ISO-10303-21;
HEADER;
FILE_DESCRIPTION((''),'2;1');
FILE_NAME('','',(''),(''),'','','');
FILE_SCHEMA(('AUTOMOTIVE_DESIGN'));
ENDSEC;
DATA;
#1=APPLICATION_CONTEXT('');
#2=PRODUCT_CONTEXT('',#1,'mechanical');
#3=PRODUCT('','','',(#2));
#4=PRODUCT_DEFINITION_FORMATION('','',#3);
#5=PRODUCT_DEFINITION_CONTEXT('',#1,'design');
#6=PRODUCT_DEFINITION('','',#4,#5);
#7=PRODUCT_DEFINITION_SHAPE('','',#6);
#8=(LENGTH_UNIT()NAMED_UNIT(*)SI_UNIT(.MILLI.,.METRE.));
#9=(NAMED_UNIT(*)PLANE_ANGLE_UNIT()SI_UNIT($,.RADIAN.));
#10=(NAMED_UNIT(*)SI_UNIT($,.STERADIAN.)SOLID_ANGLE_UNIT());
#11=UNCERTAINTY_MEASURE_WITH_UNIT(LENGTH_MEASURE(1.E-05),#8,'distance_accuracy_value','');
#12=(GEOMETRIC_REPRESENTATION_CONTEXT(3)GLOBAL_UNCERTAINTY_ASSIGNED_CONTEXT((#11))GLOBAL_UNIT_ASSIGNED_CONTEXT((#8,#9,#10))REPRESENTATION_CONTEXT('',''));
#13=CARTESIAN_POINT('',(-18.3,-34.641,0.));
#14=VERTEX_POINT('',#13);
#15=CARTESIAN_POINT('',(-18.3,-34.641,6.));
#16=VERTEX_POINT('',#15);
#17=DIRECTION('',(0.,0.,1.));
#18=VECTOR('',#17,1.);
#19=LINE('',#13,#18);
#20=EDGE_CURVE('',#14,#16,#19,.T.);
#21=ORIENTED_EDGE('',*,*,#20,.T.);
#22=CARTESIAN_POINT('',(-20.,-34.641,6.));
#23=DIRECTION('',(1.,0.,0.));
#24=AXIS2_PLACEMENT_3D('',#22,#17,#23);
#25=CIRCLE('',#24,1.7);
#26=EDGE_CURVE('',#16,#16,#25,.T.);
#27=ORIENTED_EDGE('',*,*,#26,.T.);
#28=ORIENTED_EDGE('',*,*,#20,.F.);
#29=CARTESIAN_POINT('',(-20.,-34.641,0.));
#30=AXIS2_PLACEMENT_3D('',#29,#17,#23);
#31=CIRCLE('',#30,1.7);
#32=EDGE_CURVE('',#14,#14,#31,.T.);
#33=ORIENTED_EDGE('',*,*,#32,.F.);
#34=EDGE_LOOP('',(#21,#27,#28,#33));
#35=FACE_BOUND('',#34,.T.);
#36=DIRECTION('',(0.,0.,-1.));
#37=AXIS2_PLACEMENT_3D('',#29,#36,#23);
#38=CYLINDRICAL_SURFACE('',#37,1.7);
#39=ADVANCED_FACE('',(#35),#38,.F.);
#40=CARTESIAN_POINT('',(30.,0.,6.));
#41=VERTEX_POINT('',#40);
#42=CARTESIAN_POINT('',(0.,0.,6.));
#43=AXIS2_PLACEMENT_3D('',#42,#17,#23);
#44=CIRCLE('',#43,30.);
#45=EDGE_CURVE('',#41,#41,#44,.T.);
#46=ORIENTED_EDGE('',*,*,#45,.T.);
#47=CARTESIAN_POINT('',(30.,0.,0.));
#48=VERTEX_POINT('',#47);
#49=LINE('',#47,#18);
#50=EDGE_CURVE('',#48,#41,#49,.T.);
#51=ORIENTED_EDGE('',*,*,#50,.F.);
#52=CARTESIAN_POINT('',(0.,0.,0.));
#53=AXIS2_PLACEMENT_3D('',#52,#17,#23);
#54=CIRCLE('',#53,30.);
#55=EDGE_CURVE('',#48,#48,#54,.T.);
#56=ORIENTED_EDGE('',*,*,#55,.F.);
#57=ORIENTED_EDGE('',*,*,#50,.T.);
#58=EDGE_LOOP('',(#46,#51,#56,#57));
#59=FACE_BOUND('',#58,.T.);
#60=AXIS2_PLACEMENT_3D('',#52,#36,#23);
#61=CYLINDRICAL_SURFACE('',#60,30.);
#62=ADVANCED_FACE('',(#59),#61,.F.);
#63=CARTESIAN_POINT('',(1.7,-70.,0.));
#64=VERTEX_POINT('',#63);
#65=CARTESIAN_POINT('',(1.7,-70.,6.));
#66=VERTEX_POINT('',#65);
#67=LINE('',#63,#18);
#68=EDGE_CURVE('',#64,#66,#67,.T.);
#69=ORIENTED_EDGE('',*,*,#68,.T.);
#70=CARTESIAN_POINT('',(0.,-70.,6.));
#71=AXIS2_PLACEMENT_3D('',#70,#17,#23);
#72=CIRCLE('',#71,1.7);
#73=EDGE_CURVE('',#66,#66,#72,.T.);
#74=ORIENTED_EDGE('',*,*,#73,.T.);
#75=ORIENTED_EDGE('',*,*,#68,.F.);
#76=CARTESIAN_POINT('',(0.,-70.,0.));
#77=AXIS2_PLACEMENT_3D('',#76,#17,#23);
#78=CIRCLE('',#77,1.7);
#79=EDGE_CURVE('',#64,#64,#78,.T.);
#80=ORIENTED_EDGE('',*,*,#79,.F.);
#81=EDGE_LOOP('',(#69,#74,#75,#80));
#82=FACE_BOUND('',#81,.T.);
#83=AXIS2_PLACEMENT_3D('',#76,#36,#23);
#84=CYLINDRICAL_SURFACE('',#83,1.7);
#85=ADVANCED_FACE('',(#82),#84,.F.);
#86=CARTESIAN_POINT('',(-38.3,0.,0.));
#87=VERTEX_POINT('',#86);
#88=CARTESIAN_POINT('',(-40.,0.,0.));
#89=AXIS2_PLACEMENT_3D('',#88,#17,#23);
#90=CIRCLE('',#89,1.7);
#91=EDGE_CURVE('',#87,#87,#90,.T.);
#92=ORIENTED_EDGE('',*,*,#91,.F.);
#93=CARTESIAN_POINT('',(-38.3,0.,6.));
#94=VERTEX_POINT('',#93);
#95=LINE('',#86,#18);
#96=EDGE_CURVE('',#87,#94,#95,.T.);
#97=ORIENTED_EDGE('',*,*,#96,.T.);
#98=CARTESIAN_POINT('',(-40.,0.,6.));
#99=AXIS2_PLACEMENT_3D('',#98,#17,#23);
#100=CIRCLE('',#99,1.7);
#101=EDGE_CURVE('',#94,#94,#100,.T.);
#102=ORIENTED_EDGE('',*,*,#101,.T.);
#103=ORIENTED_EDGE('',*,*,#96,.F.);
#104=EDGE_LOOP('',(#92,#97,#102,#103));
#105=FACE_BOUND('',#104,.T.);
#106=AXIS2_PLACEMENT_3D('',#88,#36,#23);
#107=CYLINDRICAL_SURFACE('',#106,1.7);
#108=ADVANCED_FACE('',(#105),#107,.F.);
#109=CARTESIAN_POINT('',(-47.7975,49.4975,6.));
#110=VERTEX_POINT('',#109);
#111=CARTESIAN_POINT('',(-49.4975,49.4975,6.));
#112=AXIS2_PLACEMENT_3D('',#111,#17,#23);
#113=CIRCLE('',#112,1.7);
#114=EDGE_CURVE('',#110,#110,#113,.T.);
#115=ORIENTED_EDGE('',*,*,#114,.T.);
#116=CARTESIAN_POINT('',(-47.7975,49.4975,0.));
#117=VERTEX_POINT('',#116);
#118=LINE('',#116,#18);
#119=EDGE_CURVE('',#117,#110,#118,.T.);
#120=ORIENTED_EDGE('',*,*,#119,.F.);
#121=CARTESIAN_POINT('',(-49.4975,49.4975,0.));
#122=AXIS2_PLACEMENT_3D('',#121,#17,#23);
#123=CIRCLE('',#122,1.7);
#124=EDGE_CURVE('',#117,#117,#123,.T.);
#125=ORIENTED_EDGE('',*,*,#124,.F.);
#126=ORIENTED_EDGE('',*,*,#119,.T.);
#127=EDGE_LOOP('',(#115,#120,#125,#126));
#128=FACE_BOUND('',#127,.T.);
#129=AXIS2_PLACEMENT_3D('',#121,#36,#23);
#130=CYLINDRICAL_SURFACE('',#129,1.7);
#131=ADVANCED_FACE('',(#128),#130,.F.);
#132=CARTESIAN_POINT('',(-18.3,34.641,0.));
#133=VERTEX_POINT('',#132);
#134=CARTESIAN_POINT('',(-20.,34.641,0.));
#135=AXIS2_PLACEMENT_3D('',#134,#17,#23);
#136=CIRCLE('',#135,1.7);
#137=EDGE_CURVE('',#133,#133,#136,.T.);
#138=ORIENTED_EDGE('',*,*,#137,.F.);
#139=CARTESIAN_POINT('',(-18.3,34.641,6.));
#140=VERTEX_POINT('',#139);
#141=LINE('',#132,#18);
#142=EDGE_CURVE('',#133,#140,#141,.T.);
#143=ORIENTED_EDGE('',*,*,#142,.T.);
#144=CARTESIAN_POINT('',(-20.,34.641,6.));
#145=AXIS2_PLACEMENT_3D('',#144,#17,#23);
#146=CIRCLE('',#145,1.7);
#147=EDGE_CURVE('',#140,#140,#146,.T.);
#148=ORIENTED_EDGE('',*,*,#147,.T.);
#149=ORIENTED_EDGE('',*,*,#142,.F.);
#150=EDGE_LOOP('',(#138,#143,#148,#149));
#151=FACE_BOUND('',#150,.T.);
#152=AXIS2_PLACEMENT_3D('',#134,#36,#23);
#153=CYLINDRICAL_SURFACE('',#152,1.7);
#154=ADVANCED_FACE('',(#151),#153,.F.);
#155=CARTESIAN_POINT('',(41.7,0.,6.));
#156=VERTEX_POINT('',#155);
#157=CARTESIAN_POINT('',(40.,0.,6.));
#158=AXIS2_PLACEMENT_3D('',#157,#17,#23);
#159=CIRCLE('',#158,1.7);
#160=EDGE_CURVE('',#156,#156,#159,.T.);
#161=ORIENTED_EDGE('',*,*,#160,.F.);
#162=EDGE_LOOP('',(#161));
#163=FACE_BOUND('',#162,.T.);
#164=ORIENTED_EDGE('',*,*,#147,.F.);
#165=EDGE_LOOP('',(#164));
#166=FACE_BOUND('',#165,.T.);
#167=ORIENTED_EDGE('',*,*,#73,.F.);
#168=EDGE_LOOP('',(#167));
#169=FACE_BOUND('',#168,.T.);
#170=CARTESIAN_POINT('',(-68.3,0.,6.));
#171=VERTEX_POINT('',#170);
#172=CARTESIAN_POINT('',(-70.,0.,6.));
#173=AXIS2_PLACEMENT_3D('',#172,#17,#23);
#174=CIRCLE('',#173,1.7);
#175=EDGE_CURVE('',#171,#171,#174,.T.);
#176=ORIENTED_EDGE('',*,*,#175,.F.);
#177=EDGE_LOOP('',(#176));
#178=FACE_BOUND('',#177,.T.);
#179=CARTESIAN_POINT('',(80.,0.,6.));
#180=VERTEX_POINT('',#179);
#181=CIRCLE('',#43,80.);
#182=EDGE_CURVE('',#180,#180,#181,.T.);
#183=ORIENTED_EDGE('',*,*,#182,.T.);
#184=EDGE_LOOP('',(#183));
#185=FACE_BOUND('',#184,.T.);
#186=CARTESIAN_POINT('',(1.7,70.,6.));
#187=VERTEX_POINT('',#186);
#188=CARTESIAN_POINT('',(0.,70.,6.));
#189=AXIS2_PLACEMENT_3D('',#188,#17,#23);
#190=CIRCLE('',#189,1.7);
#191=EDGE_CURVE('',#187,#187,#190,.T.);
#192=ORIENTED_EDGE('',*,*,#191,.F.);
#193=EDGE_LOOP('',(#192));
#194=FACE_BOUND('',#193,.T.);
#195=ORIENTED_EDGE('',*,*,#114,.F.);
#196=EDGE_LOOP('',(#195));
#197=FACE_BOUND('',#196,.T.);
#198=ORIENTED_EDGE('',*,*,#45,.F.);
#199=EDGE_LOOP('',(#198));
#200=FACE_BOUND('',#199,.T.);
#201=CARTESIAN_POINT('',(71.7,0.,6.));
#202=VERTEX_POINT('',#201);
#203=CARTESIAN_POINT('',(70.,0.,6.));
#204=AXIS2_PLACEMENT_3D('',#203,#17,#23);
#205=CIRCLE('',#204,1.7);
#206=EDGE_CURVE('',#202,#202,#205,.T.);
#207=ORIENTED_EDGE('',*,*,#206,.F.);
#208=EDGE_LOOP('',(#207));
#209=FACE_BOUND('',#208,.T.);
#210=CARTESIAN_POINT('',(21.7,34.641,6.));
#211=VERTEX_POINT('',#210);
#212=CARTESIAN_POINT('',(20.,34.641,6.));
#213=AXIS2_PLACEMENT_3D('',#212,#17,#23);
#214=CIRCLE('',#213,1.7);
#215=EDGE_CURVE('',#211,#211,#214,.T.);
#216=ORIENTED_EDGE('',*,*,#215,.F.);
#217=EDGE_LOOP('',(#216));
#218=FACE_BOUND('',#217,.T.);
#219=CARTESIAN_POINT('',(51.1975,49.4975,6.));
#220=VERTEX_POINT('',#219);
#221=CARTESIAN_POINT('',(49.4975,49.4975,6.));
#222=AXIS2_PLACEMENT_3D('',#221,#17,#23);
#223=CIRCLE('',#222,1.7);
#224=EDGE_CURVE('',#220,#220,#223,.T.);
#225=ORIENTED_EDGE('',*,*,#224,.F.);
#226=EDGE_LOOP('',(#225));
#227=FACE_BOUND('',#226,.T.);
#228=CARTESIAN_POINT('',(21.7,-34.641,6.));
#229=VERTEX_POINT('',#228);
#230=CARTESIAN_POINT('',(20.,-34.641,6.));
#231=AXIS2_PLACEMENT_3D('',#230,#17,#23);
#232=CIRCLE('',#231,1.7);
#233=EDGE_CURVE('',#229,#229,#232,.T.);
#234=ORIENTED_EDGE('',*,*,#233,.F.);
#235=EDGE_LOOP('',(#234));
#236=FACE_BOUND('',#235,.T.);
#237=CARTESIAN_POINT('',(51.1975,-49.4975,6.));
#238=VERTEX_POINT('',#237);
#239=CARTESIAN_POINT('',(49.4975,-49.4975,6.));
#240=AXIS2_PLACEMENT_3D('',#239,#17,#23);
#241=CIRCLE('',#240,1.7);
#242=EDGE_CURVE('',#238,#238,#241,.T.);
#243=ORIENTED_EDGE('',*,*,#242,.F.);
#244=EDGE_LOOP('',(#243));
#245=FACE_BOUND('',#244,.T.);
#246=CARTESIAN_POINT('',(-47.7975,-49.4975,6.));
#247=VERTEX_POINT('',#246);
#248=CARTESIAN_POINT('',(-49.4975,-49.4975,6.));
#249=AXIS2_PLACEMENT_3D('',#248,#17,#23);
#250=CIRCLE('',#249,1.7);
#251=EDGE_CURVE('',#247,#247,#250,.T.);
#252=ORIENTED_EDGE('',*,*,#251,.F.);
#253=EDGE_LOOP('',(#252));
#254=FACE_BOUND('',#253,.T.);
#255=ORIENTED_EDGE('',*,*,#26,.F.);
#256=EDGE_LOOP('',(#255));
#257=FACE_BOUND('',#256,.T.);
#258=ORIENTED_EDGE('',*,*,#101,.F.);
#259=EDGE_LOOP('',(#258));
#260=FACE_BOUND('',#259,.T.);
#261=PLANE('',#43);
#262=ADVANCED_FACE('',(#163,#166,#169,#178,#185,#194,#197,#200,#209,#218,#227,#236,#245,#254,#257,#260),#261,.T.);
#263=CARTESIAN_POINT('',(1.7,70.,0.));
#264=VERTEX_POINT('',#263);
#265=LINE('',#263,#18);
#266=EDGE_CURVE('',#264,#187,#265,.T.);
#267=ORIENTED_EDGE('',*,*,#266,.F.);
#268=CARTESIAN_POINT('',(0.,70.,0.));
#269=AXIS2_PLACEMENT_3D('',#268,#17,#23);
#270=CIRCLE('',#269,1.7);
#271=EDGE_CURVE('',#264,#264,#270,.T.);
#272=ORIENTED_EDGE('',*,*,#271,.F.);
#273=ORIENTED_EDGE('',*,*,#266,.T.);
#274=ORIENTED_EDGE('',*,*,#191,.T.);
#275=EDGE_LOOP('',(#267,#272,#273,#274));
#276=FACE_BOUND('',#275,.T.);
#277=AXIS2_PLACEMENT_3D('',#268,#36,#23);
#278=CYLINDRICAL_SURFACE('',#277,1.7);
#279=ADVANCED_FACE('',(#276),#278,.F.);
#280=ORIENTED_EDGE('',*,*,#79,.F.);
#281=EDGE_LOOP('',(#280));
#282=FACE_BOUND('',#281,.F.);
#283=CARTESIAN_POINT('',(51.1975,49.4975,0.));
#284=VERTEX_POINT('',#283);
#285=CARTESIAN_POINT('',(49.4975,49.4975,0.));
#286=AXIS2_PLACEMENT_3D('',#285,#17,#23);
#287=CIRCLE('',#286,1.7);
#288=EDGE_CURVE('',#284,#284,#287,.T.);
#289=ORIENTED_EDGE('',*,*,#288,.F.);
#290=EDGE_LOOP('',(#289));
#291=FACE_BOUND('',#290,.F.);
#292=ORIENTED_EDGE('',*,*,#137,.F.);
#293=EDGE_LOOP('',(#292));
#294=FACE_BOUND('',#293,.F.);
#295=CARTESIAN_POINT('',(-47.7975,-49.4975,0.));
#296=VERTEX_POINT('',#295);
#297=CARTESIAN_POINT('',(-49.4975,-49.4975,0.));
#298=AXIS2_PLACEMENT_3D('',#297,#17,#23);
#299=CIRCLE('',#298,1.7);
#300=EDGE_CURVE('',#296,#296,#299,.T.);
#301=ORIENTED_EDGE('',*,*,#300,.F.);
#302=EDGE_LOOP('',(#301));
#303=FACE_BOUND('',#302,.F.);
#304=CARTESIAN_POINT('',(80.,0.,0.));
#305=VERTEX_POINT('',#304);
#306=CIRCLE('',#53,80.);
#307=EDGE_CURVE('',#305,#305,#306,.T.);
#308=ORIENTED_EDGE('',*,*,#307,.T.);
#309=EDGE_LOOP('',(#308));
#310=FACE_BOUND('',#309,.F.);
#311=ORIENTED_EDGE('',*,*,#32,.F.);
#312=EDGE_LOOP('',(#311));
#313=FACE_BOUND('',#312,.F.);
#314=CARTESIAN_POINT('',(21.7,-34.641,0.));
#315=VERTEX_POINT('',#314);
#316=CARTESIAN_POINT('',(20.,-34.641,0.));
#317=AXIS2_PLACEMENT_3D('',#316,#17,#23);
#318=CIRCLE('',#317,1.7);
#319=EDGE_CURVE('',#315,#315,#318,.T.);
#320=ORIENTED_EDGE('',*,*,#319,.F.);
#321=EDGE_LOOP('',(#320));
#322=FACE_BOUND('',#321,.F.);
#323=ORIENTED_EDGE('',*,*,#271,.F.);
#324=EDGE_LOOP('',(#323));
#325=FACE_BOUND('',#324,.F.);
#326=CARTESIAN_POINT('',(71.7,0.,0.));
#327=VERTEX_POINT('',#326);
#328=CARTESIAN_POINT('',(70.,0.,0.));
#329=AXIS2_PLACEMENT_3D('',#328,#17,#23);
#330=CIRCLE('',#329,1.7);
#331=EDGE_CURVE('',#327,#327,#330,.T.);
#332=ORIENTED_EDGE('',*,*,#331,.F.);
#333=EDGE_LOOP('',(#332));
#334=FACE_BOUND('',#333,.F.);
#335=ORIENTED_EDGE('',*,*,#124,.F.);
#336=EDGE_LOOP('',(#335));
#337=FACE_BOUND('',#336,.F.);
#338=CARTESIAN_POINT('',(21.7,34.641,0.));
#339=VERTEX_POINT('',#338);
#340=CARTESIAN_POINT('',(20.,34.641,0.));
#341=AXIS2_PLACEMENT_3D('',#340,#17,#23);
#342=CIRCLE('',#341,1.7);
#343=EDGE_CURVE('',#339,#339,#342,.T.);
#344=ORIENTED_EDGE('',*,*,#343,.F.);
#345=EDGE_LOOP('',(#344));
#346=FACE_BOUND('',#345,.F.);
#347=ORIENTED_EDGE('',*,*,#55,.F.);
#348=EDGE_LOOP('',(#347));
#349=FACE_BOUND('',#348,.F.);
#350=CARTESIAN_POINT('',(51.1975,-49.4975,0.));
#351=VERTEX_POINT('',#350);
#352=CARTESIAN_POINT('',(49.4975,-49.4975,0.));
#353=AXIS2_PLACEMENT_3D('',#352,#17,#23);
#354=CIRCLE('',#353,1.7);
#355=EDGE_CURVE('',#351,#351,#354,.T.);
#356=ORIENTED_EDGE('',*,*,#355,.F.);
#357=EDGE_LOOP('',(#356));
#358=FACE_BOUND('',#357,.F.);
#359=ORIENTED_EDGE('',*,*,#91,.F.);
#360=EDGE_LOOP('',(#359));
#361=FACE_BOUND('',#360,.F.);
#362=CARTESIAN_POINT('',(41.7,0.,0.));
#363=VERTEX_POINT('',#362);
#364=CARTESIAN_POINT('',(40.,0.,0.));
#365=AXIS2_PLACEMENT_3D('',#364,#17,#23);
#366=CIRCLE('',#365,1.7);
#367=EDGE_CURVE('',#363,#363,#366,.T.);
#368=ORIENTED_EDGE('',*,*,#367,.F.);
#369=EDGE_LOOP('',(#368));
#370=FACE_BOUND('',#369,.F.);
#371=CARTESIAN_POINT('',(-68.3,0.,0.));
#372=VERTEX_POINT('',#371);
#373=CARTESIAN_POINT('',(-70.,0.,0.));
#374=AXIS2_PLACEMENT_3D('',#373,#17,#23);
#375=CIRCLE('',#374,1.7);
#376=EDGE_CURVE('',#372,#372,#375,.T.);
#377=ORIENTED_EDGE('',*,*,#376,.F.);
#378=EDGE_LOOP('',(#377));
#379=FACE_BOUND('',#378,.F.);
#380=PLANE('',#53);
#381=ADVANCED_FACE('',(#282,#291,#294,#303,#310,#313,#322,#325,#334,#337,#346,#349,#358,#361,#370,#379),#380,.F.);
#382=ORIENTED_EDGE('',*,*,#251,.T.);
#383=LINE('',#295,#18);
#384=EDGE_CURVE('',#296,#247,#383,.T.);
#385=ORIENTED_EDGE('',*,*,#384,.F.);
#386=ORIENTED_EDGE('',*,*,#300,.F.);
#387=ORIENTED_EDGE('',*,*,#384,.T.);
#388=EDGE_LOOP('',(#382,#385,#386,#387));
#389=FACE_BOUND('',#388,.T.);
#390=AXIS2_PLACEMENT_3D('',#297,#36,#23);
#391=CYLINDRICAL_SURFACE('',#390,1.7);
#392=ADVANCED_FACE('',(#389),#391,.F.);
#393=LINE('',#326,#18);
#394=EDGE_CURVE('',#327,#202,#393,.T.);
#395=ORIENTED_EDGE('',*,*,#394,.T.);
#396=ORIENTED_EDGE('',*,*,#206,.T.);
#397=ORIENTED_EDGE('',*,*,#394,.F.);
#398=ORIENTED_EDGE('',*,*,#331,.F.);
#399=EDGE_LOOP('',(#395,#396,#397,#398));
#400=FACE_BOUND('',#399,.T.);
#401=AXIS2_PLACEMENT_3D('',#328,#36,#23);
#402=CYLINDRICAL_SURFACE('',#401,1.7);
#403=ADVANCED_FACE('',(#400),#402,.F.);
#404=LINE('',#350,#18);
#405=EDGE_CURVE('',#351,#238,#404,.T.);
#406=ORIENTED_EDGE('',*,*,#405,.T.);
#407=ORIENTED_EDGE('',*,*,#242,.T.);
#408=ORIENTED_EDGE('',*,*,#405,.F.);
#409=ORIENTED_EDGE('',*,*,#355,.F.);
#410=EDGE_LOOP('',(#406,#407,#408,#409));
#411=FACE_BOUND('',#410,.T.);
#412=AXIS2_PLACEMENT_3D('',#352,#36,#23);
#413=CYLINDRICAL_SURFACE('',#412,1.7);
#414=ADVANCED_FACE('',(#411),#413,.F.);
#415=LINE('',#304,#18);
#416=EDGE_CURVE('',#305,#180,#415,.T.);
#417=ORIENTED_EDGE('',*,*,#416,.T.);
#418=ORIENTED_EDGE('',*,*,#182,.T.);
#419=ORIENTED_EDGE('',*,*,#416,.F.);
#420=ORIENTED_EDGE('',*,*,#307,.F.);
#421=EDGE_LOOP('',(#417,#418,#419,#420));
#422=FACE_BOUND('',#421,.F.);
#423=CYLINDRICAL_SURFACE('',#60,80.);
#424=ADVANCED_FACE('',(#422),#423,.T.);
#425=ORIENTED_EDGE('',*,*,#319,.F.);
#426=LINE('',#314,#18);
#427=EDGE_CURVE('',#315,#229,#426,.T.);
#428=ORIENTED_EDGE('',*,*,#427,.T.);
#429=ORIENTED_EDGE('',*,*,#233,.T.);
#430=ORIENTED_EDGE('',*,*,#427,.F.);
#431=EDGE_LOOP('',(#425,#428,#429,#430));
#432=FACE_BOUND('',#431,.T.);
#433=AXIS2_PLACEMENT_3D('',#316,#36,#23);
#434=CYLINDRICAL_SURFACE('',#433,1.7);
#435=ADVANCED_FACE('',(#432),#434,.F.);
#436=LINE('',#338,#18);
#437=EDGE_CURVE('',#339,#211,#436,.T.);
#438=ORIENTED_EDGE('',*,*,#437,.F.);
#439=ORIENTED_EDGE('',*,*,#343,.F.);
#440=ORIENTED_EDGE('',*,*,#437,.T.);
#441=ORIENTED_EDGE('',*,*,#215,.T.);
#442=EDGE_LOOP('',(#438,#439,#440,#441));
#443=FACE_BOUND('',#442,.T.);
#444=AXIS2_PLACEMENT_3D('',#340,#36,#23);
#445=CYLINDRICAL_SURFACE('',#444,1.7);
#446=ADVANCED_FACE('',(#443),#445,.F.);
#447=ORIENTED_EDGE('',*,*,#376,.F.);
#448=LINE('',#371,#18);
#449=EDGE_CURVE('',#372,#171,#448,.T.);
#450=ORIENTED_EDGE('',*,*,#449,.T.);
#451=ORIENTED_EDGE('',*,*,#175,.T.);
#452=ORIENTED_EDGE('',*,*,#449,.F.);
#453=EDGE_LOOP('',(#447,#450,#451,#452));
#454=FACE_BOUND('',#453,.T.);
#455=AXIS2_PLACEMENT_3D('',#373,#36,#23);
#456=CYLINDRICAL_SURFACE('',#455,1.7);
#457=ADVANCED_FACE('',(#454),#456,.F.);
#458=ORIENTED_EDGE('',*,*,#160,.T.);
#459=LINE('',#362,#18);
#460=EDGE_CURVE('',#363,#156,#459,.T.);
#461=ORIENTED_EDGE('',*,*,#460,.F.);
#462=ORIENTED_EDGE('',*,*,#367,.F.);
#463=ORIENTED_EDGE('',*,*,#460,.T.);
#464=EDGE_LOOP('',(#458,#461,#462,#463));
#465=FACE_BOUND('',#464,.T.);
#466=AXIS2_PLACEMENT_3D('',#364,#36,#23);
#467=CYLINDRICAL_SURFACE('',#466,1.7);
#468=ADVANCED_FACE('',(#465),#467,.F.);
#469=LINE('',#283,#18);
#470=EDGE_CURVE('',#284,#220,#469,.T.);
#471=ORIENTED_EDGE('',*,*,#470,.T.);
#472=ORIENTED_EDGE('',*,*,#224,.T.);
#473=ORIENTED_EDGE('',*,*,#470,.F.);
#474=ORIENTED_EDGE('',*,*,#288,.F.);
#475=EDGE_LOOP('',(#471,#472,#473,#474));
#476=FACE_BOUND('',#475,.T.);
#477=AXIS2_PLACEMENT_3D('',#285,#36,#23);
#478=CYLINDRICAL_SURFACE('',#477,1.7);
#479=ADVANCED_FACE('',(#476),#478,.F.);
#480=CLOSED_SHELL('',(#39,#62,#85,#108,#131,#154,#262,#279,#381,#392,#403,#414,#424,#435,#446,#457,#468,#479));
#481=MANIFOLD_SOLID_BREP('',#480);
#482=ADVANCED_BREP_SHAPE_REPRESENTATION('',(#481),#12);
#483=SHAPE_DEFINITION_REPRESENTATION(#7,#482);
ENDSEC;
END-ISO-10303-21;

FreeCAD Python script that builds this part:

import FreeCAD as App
import Part
import Sketcher

V = App.Vector
Q = App.Units.Quantity

doc = App.newDocument("Part")
body = doc.addObject("PartDesign::Body", "Body")

# Sketch on XY plane
sketch1 = body.newObject("Sketcher::SketchObject", "Sketch")
sketch1.AttachmentSupport = (doc.getObject("XY_Plane"), [""])
sketch1.MapMode = "FlatFace"
sketch1.addGeometry([
    Part.Circle(V(0, 0, 0), V(0, 0, 1), 80),  # 0
    Part.Circle(V(-49.5, -49.5, 0), V(0, 0, 1), 1.7),  # 1
    Part.Circle(V(-20, -34.6, 0), V(0, 0, 1), 1.7),  # 2
    Part.Circle(V(0, -70, 0), V(0, 0, 1), 1.7),  # 3
    Part.Circle(V(49.5, -49.5, 0), V(0, 0, 1), 1.7),  # 4
    Part.Circle(V(20, -34.6, 0), V(0, 0, 1), 1.7),  # 5
    Part.Circle(V(-70, 0, 0), V(0, 0, 1), 1.7),  # 6
    Part.Circle(V(-40, 0, 0), V(0, 0, 1), 1.7),  # 7
    Part.Circle(V(-20, 34.6, 0), V(0, 0, 1), 1.7),  # 8
    Part.Circle(V(-49.5, 49.5, 0), V(0, 0, 1), 1.7),  # 9
    Part.Circle(V(0, 0, 0), V(0, 0, 1), 30),  # 10
    Part.Circle(V(20, 34.6, 0), V(0, 0, 1), 1.7),  # 11
    Part.Circle(V(40, 0, 0), V(0, 0, 1), 1.7),  # 12
    Part.Circle(V(70, 0, 0), V(0, 0, 1), 1.7),  # 13
    Part.Circle(V(0, 70, 0), V(0, 0, 1), 1.7),  # 14
    Part.Circle(V(49.5, 49.5, 0), V(0, 0, 1), 1.7),  # 15
], False)
sketch1.addConstraint([
    Sketcher.Constraint("Coincident", 0, 3, -1, 1),
    Sketcher.Constraint("Coincident", 10, 3, -1, 1),
    Sketcher.Constraint("Equal", 1, 2),
    Sketcher.Constraint("Equal", 2, 3),
    Sketcher.Constraint("Equal", 3, 4),
    Sketcher.Constraint("Equal", 4, 5),
    Sketcher.Constraint("Equal", 5, 6),
    Sketcher.Constraint("Equal", 6, 7),
    Sketcher.Constraint("Equal", 7, 8),
    Sketcher.Constraint("Equal", 8, 9),
    Sketcher.Constraint("Equal", 9, 11),
    Sketcher.Constraint("Equal", 11, 12),
    Sketcher.Constraint("Equal", 12, 13),
    Sketcher.Constraint("Equal", 13, 14),
    Sketcher.Constraint("Equal", 14, 15),
    Sketcher.Constraint("Symmetric", 5, 3, 8, 3, -1, 1),
    Sketcher.Constraint("Symmetric", 4, 3, 9, 3, -1, 1),
    Sketcher.Constraint("Symmetric", 2, 3, 11, 3, -1, 1),
    Sketcher.Constraint("Symmetric", 7, 3, 12, 3, -1, 1),
    Sketcher.Constraint("Symmetric", 6, 3, 13, 3, -1, 1),
    Sketcher.Constraint("Symmetric", 3, 3, 14, 3, -1, 1),
    Sketcher.Constraint("Symmetric", 1, 3, 15, 3, -1, 1),
    Sketcher.Constraint("Symmetric", 1, 3, 4, 3, -2),
    Sketcher.Constraint("Symmetric", 2, 3, 5, 3, -2),
    Sketcher.Constraint("PointOnObject", 3, 3, -2),
    Sketcher.Constraint("PointOnObject", 6, 3, -1),
    Sketcher.Constraint("PointOnObject", 7, 3, -1),
    Sketcher.Constraint("Diameter", 0, Q("160 mm")),
    Sketcher.Constraint("Diameter", 10, Q("60 mm")),
    Sketcher.Constraint("Diameter", 1, Q("3.4 mm")),
    Sketcher.Constraint("DistanceX", 2, 3, -1, 1, Q("20 mm")),
    Sketcher.Constraint("DistanceY", 3, 3, -1, 1, Q("70 mm")),
    Sketcher.Constraint("DistanceX", 6, 3, -1, 1, Q("70 mm")),
    Sketcher.Constraint("DistanceX", 7, 3, -1, 1, Q("40 mm")),
    Sketcher.Constraint("DistanceY", 2, 3, -1, 1, Q("34.641 mm")),
    Sketcher.Constraint("DistanceX", 1, 3, 4, 3, Q("98.995 mm")),
    Sketcher.Constraint("DistanceY", 1, 3, -1, 1, Q("49.4975 mm")),
])
pad1 = body.newObject("PartDesign::Pad", "Pad")
pad1.Profile = sketch1
pad1.Length = 6

doc.recompute()
